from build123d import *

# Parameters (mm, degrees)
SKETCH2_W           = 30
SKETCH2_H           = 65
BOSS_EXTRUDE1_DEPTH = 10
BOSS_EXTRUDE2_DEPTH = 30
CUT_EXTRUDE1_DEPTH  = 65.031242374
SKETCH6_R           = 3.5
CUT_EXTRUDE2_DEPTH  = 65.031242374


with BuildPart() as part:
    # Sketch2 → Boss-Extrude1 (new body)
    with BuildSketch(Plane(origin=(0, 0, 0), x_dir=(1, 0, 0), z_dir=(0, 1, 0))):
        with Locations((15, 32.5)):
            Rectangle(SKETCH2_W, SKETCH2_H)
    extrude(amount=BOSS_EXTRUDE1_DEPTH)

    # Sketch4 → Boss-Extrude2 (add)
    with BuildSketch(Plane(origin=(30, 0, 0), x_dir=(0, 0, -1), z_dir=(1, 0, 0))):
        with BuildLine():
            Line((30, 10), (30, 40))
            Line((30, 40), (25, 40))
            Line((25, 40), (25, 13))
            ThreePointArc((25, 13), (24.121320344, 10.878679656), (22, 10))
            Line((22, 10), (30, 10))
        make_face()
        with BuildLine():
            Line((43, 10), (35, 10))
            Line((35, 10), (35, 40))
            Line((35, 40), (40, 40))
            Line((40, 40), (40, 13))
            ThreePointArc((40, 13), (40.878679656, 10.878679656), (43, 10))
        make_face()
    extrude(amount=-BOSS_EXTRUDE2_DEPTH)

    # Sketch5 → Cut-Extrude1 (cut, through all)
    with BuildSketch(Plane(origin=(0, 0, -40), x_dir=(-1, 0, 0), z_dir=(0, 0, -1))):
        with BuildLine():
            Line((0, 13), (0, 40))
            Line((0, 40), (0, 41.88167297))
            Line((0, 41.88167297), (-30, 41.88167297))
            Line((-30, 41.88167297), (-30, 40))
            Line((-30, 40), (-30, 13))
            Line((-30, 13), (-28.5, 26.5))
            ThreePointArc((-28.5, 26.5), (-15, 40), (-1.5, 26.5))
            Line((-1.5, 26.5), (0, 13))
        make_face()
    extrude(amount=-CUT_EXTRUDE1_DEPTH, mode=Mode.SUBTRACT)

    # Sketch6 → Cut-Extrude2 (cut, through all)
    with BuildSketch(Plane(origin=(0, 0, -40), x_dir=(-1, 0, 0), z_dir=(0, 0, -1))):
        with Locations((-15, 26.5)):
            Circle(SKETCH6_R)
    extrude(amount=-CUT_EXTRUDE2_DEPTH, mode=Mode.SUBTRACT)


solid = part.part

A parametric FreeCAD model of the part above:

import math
import FreeCAD as App
import Part
import Sketcher


def add_polygon(sketch, points):
    """Adds a closed chain of lines whose ends are joined by coincident constraints."""
    first, n = sketch.GeometryCount, len(points)
    for a, b in zip(points, points[1:] + points[:1]):
        sketch.addGeometry(Part.LineSegment(App.Vector(*a, 0), App.Vector(*b, 0)), False)
    for i in range(n):
        sketch.addConstraint(Sketcher.Constraint("Coincident", first + i, 2, first + (i + 1) % n, 1))

doc = App.newDocument("Part")
body = doc.addObject("PartDesign::Body", "Body")

# Sketch on XZ plane
sketch1 = body.newObject("Sketcher::SketchObject", "Sketch")
sketch1.AttachmentSupport = (doc.getObject("XZ_Plane"), [""])
sketch1.MapMode = "FlatFace"
add_polygon(sketch1, [(0, -65), (0, 0), (30, 0), (30, -65)])  # lines 0-3
sketch1.addConstraint(Sketcher.Constraint("Vertical", 0))
sketch1.addConstraint(Sketcher.Constraint("Horizontal", 1))
sketch1.addConstraint(Sketcher.Constraint("Vertical", 2))
sketch1.addConstraint(Sketcher.Constraint("Horizontal", 3))
sketch1.addConstraint(Sketcher.Constraint("Coincident", 0, 2, -1, 1))
sketch1.addConstraint(Sketcher.Constraint("DistanceX", 1, 1, 1, 2, 30.0))
sketch1.addConstraint(Sketcher.Constraint("DistanceY", 0, 1, 0, 2, 65.0))
pad1 = body.newObject("PartDesign::Pad", "Pad")
pad1.Profile = sketch1
pad1.Length = 10
pad1.Reversed = True

# Sketch on YZ plane
sketch2 = body.newObject("Sketcher::SketchObject", "Sketch001")
sketch2.AttachmentSupport = (doc.getObject("YZ_Plane"), [""])
sketch2.MapMode = "FlatFace"
sketch2.AttachmentOffset = App.Placement(App.Vector(0, 0, 30), App.Rotation())
sketch2.addGeometry(Part.LineSegment(App.Vector(10, -30, 0), App.Vector(40, -30, 0)), False)
sketch2.addGeometry(Part.LineSegment(App.Vector(40, -30, 0), App.Vector(40, -25, 0)), False)
sketch2.addGeometry(Part.LineSegment(App.Vector(40, -25, 0), App.Vector(13, -25, 0)), False)
sketch2.addGeometry(Part.ArcOfCircle(Part.Circle(App.Vector(13, -22, 0), App.Vector(0, 0, 1), 3), math.radians(180), math.radians(270)), False)
sketch2.addGeometry(Part.LineSegment(App.Vector(10, -22, 0), App.Vector(10, -30, 0)), False)
sketch2.addGeometry(Part.LineSegment(App.Vector(10, -35, 0), App.Vector(10, -43, 0)), False)
sketch2.addGeometry(Part.ArcOfCircle(Part.Circle(App.Vector(13, -43, 0), App.Vector(0, 0, 1), 3), math.radians(90), math.radians(180)), False)
sketch2.addGeometry(Part.LineSegment(App.Vector(13, -40, 0), App.Vector(40, -40, 0)), False)
sketch2.addGeometry(Part.LineSegment(App.Vector(40, -40, 0), App.Vector(40, -35, 0)), False)
sketch2.addGeometry(Part.LineSegment(App.Vector(40, -35, 0), App.Vector(10, -35, 0)), False)
sketch2.addConstraint(Sketcher.Constraint("Coincident", 0, 2, 1, 1))
sketch2.addConstraint(Sketcher.Constraint("Coincident", 1, 2, 2, 1))
sketch2.addConstraint(Sketcher.Constraint("Tangent", 2, 2, 3, 2))
sketch2.addConstraint(Sketcher.Constraint("Tangent", 3, 1, 4, 1))
sketch2.addConstraint(Sketcher.Constraint("Coincident", 4, 2, 0, 1))
sketch2.addConstraint(Sketcher.Constraint("Tangent", 5, 2, 6, 2))
sketch2.addConstraint(Sketcher.Constraint("Tangent", 6, 1, 7, 1))
sketch2.addConstraint(Sketcher.Constraint("Coincident", 7, 2, 8, 1))
sketch2.addConstraint(Sketcher.Constraint("Coincident", 8, 2, 9, 1))
sketch2.addConstraint(Sketcher.Constraint("Coincident", 9, 2, 5, 1))
sketch2.addConstraint(Sketcher.Constraint("Horizontal", 0))
sketch2.addConstraint(Sketcher.Constraint("Vertical", 1))
sketch2.addConstraint(Sketcher.Constraint("Horizontal", 2))
sketch2.addConstraint(Sketcher.Constraint("Vertical", 4))
sketch2.addConstraint(Sketcher.Constraint("Vertical", 5))
sketch2.addConstraint(Sketcher.Constraint("Horizontal", 7))
sketch2.addConstraint(Sketcher.Constraint("Vertical", 8))
sketch2.addConstraint(Sketcher.Constraint("Horizontal", 9))
sketch2.addConstraint(Sketcher.Constraint("Equal", 3, 6))
sketch2.addConstraint(Sketcher.Constraint("Vertical", 3, 3, 6, 3))
sketch2.addConstraint(Sketcher.Constraint("Vertical", 1, 2, 7, 2))
sketch2.addConstraint(Sketcher.Constraint("Equal", 4, 5))
sketch2.addConstraint(Sketcher.Constraint("Radius", 3, 3.0))
sketch2.addConstraint(Sketcher.Constraint("DistanceX", 0, 1, 0, 2, 30.0))
sketch2.addConstraint(Sketcher.Constraint("DistanceY", 1, 1, 1, 2, 5.0))
sketch2.addConstraint(Sketcher.Constraint("DistanceX", -1, 1, 3, 3, 13.0))
sketch2.addConstraint(Sketcher.Constraint("DistanceY", 3, 3, -1, 1, 22.0))
sketch2.addConstraint(Sketcher.Constraint("DistanceY", 6, 3, -1, 1, 43.0))
pad2 = body.newObject("PartDesign::Pad", "Pad001")
pad2.Profile = sketch2
pad2.Length = 30
pad2.Reversed = True

# Sketch on XY plane
sketch3 = body.newObject("Sketcher::SketchObject", "Sketch002")
sketch3.AttachmentSupport = (doc.getObject("XY_Plane"), [""])
sketch3.MapMode = "FlatFace"
sketch3.AttachmentOffset = App.Placement(App.Vector(0, 0, -40), App.Rotation())
sketch3.addGeometry(Part.LineSegment(App.Vector(0, 13, 0), App.Vector(0, 41.881673, 0)), False)
sketch3.addGeometry(Part.LineSegment(App.Vector(0, 41.881673, 0), App.Vector(30, 41.881673, 0)), False)
sketch3.addGeometry(Part.LineSegment(App.Vector(30, 41.881673, 0), App.Vector(30, 13, 0)), False)
sketch3.addGeometry(Part.LineSegment(App.Vector(30, 13, 0), App.Vector(28.5, 26.5, 0)), False)
sketch3.addGeometry(Part.ArcOfCircle(Part.Circle(App.Vector(15, 26.5, 0), App.Vector(0, 0, 1), 13.5), math.radians(0), math.radians(180)), False)
sketch3.addGeometry(Part.LineSegment(App.Vector(1.5, 26.5, 0), App.Vector(0, 13, 0)), False)
sketch3.addConstraint(Sketcher.Constraint("Coincident", 0, 2, 1, 1))
sketch3.addConstraint(Sketcher.Constraint("Coincident", 1, 2, 2, 1))
sketch3.addConstraint(Sketcher.Constraint("Coincident", 2, 2, 3, 1))
sketch3.addConstraint(Sketcher.Constraint("Coincident", 3, 2, 4, 1))
sketch3.addConstraint(Sketcher.Constraint("Coincident", 4, 2, 5, 1))
sketch3.addConstraint(Sketcher.Constraint("Coincident", 5, 2, 0, 1))
sketch3.addConstraint(Sketcher.Constraint("Vertical", 0))
sketch3.addConstraint(Sketcher.Constraint("Horizontal", 1))
sketch3.addConstraint(Sketcher.Constraint("Vertical", 2))
sketch3.addConstraint(Sketcher.Constraint("PointOnObject", 0, 2, -2))
sketch3.addConstraint(Sketcher.Constraint("Horizontal", 4, 3, 3, 2))
sketch3.addConstraint(Sketcher.Constraint("Horizontal", 3, 2, 4, 2))
sketch3.addConstraint(Sketcher.Constraint("Horizontal", 2, 2, 5, 2))
sketch3.addConstraint(Sketcher.Constraint("Equal", 3, 5))
sketch3.addConstraint(Sketcher.Constraint("Radius", 4, 13.5))
sketch3.addConstraint(Sketcher.Constraint("DistanceX", 1, 1, 1, 2, 30.0))
sketch3.addConstraint(Sketcher.Constraint("DistanceY", -1, 1, 2, 2, 13.0))
sketch3.addConstraint(Sketcher.Constraint("DistanceY", -1, 1, 4, 3, 26.5))
sketch3.addConstraint(Sketcher.Constraint("DistanceY", 0, 1, 0, 2, 28.881673))
pocket1 = body.newObject("PartDesign::Pocket", "Pocket")
pocket1.Profile = sketch3
pocket1.Type = "ThroughAll"
pocket1.Reversed = True

# Sketch on XY plane
sketch4 = body.newObject("Sketcher::SketchObject", "Sketch003")
sketch4.AttachmentSupport = (doc.getObject("XY_Plane"), [""])
sketch4.MapMode = "FlatFace"
sketch4.AttachmentOffset = App.Placement(App.Vector(0, 0, -40), App.Rotation())
sketch4.addGeometry(Part.Circle(App.Vector(15, 26.5, 0), App.Vector(0, 0, 1), 3.5), False)
sketch4.addConstraint(Sketcher.Constraint("Diameter", 0, 7.0))
sketch4.addConstraint(Sketcher.Constraint("DistanceX", -1, 1, 0, 3, 15.0))
sketch4.addConstraint(Sketcher.Constraint("DistanceY", -1, 1, 0, 3, 26.5))
pocket2 = body.newObject("PartDesign::Pocket", "Pocket001")
pocket2.Profile = sketch4
pocket2.Type = "ThroughAll"
pocket2.Reversed = True

doc.recompute()
